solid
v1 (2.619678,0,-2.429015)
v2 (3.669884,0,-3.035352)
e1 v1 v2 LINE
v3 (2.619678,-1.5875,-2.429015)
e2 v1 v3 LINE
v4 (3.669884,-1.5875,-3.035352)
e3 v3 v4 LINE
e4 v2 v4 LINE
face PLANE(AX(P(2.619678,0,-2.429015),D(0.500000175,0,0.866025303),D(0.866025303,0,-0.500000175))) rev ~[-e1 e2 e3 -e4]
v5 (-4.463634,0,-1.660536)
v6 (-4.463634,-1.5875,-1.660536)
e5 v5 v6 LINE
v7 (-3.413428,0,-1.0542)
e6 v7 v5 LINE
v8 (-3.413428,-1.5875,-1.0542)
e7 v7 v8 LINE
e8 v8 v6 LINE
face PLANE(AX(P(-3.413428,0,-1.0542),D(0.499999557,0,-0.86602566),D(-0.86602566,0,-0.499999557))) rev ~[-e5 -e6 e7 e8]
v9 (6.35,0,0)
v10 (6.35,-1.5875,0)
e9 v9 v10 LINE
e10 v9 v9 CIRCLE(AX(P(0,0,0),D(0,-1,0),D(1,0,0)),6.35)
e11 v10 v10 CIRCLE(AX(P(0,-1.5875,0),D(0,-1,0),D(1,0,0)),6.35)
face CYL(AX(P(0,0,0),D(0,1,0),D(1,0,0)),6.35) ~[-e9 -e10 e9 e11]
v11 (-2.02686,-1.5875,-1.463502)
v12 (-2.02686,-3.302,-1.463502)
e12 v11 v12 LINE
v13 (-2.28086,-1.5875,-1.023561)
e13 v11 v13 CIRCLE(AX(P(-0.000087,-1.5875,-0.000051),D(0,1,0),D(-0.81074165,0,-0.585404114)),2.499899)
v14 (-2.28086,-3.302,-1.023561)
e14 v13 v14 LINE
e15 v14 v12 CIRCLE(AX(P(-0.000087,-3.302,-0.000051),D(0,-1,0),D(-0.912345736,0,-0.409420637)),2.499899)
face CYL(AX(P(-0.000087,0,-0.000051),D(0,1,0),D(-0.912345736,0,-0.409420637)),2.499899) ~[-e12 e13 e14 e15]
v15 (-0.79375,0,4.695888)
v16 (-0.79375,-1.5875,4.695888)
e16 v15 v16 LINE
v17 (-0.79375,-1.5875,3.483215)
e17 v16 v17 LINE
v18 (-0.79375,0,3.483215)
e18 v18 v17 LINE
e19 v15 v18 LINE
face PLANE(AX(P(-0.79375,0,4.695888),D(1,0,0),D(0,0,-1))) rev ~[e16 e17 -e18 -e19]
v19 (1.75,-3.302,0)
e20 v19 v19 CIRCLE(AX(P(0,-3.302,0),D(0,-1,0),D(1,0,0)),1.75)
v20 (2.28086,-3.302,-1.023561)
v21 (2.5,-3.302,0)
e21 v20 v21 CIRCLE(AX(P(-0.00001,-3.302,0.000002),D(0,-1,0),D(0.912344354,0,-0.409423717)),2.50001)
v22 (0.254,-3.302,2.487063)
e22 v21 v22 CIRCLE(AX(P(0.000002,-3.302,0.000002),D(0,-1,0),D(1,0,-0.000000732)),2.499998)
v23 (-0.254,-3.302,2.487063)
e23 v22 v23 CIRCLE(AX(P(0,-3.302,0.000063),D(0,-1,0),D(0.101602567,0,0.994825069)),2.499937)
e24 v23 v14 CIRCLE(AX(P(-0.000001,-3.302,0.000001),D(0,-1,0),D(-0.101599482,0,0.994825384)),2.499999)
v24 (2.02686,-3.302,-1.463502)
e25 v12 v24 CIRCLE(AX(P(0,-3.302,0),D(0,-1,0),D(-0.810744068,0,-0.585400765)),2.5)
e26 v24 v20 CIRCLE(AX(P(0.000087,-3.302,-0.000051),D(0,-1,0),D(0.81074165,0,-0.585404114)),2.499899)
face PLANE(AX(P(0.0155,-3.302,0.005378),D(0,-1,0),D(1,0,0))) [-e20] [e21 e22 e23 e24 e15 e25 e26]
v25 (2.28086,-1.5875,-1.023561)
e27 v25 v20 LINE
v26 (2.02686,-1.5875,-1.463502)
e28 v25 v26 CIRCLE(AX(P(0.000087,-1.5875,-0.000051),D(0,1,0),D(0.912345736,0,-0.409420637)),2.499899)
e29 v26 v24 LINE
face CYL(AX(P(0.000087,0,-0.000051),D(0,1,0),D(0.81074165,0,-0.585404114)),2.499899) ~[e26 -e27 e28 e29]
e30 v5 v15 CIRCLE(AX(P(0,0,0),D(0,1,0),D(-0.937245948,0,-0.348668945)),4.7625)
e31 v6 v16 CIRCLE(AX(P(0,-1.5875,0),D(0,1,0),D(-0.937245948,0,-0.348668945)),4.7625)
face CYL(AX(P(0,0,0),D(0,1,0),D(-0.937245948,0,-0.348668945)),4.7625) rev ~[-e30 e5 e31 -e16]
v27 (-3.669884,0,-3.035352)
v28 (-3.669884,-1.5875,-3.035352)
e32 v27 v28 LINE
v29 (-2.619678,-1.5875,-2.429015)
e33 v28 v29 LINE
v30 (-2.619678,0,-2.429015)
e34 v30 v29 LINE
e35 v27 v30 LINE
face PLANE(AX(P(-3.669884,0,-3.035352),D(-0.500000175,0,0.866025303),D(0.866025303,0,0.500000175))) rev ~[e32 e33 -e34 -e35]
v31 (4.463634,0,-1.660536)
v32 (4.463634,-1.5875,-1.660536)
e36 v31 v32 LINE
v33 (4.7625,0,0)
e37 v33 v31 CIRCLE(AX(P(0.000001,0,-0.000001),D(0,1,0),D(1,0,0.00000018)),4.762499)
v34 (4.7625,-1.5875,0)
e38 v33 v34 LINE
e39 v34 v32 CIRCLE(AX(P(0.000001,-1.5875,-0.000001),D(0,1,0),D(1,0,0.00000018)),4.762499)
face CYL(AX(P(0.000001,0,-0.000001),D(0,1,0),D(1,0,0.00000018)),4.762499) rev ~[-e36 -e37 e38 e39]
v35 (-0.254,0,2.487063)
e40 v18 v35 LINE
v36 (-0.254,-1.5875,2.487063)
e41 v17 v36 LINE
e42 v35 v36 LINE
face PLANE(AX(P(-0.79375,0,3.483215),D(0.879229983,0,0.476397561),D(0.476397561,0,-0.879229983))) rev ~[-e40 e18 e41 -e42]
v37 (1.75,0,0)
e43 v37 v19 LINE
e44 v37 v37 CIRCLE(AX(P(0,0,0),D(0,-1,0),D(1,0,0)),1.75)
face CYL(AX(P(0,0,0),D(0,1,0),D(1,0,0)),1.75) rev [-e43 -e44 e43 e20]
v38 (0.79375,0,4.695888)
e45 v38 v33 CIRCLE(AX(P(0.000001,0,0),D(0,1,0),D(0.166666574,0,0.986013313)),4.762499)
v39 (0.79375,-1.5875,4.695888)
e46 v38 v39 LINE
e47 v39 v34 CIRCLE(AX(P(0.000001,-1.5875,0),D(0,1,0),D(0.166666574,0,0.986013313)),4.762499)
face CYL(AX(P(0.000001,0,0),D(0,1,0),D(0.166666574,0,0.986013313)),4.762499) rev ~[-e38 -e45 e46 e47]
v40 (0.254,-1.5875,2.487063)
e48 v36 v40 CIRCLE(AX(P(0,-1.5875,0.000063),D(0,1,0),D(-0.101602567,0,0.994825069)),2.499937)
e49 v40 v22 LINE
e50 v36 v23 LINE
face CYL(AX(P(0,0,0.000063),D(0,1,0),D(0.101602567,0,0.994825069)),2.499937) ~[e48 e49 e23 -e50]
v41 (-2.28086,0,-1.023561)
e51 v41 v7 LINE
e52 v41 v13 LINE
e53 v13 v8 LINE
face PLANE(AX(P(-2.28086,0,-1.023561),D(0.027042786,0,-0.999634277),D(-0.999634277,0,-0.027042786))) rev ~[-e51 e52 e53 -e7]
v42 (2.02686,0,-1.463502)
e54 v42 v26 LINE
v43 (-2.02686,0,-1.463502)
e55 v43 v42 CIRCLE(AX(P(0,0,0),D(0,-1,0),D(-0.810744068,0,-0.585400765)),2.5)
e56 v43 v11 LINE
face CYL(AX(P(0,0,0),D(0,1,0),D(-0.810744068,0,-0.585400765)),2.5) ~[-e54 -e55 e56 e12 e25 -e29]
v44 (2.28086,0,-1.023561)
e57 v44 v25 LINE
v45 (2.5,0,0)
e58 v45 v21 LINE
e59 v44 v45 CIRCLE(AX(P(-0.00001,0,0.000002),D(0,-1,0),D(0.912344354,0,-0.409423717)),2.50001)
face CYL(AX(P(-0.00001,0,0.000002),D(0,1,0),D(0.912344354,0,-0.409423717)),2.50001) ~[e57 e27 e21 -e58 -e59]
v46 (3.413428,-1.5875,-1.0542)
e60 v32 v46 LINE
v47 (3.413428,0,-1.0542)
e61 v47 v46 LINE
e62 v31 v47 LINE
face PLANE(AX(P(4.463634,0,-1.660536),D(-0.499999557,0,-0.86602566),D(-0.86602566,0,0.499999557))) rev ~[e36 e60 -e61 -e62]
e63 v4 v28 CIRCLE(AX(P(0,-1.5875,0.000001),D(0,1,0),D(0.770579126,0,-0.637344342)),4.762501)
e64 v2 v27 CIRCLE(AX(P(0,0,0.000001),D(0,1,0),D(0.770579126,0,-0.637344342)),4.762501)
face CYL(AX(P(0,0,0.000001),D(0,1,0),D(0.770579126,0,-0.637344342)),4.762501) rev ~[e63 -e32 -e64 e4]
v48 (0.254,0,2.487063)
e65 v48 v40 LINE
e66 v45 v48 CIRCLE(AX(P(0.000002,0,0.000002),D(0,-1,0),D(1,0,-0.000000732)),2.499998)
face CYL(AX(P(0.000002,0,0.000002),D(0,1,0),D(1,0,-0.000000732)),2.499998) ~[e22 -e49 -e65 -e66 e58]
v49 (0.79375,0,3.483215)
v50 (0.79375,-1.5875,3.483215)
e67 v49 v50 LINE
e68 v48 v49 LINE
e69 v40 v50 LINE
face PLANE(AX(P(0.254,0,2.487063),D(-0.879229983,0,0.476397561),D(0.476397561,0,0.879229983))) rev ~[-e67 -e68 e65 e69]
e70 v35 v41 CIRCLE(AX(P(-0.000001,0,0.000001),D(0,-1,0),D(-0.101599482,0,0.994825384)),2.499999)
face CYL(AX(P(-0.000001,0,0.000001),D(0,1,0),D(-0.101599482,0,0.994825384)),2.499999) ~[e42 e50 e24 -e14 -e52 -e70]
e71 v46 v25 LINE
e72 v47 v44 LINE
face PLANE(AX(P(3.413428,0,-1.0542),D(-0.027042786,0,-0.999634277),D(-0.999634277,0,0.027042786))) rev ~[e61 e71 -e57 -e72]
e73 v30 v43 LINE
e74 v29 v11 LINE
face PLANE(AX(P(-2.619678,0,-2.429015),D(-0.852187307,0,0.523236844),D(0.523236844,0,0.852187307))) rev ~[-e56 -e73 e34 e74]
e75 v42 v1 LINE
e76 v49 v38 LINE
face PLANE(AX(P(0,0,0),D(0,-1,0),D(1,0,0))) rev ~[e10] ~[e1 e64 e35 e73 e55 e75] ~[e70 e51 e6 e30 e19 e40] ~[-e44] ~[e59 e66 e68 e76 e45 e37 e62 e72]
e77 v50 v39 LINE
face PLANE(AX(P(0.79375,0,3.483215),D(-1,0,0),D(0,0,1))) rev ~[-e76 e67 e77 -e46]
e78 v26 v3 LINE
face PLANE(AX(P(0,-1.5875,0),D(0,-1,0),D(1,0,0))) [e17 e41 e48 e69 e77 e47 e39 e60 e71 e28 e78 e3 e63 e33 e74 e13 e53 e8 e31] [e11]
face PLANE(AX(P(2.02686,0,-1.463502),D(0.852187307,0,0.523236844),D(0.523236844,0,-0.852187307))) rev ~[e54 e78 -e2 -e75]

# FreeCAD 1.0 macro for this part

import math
import FreeCAD as App
import Part
import Sketcher

V = App.Vector
Q = App.Units.Quantity

doc = App.newDocument("Part")
params = doc.addObject("Spreadsheet::Sheet", "Params")
for row, (alias, value) in enumerate([
    ("pad1_length", "0.13 in"),
    ("sketch2_diameter", "0.5 in"),
    ("sketch2_radius", "0.1875 in"),
    ("pad2_length", "0.0625 in"),
], start=1):
    params.set(f"A{row}", alias)
    params.set(f"B{row}", "=" + value)
    params.setAlias(f"B{row}", alias)

body = doc.addObject("PartDesign::Body", "Body")

sketch1 = body.newObject("Sketcher::SketchObject", "Sketch")
sketch1.AttachmentSupport = (doc.getObject("XZ_Plane"), [""])
sketch1.MapMode = "FlatFace"
sketch1.addGeometry([
    Part.ArcOfCircle(Part.Circle(V(-0.00001, 0.000002, 0), V(0, 0, 1), 2.50001), math.radians(-24.168639), math.radians(-0.000056)),
    Part.ArcOfCircle(Part.Circle(V(0.000002, 0.000002, 0), V(0, 0, 1), 2.499998), math.radians(-0.000042), math.radians(84.168736)),
    Part.ArcOfCircle(Part.Circle(V(0, 0.000063, 0), V(0, 0, 1), 2.499937), math.radians(84.168539), math.radians(95.831461)),
    Part.ArcOfCircle(Part.Circle(V(-0.000001, 0.000001, 0), V(0, 0, 1), 2.499999), math.radians(95.831283), math.radians(204.16871)),
    Part.ArcOfCircle(Part.Circle(V(-0.000087, -0.000051, 0), V(0, 0, 1), 2.499899), math.radians(-155.831555), math.radians(-144.168456)),
    Part.ArcOfCircle(Part.Circle(V(0, 0, 0), V(0, 0, 1), 2.5), math.radians(-144.168693), math.radians(-35.831307)),
    Part.ArcOfCircle(Part.Circle(V(0.000087, -0.000051, 0), V(0, 0, 1), 2.499899), math.radians(-35.831544), math.radians(-24.168445)),
    Part.Circle(V(0, 0, 0), V(0, 0, 1), 1.75),
], False)
sketch1.addConstraint([
    Sketcher.Constraint("Tangent", 0, 2, 1, 1),
    Sketcher.Constraint("Coincident", 1, 2, 2, 1),
    Sketcher.Constraint("Coincident", 2, 2, 3, 1),
    Sketcher.Constraint("Coincident", 3, 2, 4, 1),
    Sketcher.Constraint("Coincident", 4, 2, 5, 1),
    Sketcher.Constraint("Coincident", 5, 2, 6, 1),
    Sketcher.Constraint("Coincident", 6, 2, 0, 1),
    Sketcher.Constraint("Coincident", 1, 3, -1, 1),
    Sketcher.Constraint("Coincident", 3, 3, -1, 1),
    Sketcher.Constraint("Coincident", 5, 3, -1, 1),
    Sketcher.Constraint("Coincident", 7, 3, -1, 1),
    Sketcher.Constraint("Equal", 1, 3),
    Sketcher.Constraint("Equal", 3, 5),
    Sketcher.Constraint("Equal", 4, 6),
    Sketcher.Constraint("Symmetric", 3, 2, 6, 2, -2),
    Sketcher.Constraint("PointOnObject", 0, 2, -1),
    Sketcher.Constraint("Horizontal", 1, 2, 2, 2),
    Sketcher.Constraint("Horizontal", 4, 2, 5, 2),
    Sketcher.Constraint("Diameter", 7, Q("3.5 mm")),
    Sketcher.Constraint("DistanceX", -1, 1, 1, 2, Q("0.01 in")),
    Sketcher.Constraint("Radius", 3, Q("2.499999 mm")),
    Sketcher.Constraint("Radius", 4, Q("2.499899 mm")),
    Sketcher.Constraint("DistanceX", 3, 2, 4, 2, Q("0.01 in")),
    Sketcher.Constraint("Radius", 2, Q("2.499937 mm")),
    Sketcher.Constraint("DistanceY", 4, 2, -1, 1, Q("1.463502 mm")),
])
pad1 = body.newObject("PartDesign::Pad", "Pad")
pad1.Profile = sketch1
pad1.setExpression("Length", "Params.pad1_length")

sketch2 = body.newObject("Sketcher::SketchObject", "Sketch001")
sketch2.AttachmentSupport = (doc.getObject("XZ_Plane"), [""])
sketch2.MapMode = "FlatFace"
sketch2.addGeometry([
    Part.Circle(V(0, 0, 0), V(0, 0, 1), 6.35),
    Part.ArcOfCircle(Part.Circle(V(0, 0, 0), V(0, 0, 1), 4.7625), math.radians(99.594065), math.radians(200.405923)),
    Part.LineSegment(V(-0.79375, 4.695888, 0), V(-0.79375, 3.483215, 0)),
    Part.LineSegment(V(-0.79375, 3.483215, 0), V(-0.254, 2.487063, 0)),
    Part.ArcOfCircle(Part.Circle(V(0, 0.000063, 0), V(0, 0, 1), 2.499937), math.radians(84.168539), math.radians(95.831461)),
    Part.LineSegment(V(0.254, 2.487063, 0), V(0.79375, 3.483215, 0)),
    Part.LineSegment(V(0.79375, 3.483215, 0), V(0.79375, 4.695888, 0)),
    Part.ArcOfCircle(Part.Circle(V(0.000001, 0, 0), V(0, 0, 1), 4.762499), math.radians(-0.000001), math.radians(80.405937)),
    Part.ArcOfCircle(Part.Circle(V(0.000001, -0.000001, 0), V(0, 0, 1), 4.762499), math.radians(-20.40592), math.radians(0.00001)),
    Part.LineSegment(V(4.463634, -1.660536, 0), V(3.413428, -1.0542, 0)),
    Part.LineSegment(V(3.413428, -1.0542, 0), V(2.28086, -1.023561, 0)),
    Part.ArcOfCircle(Part.Circle(V(0.000087, -0.000051, 0), V(0, 0, 1), 2.499899), math.radians(-35.831544), math.radians(-24.168445)),
    Part.LineSegment(V(2.02686, -1.463502, 0), V(2.619678, -2.429015, 0)),
    Part.LineSegment(V(2.619678, -2.429015, 0), V(3.669884, -3.035352, 0)),
    Part.ArcOfCircle(Part.Circle(V(0, 0.000001, 0), V(0, 0, 1), 4.762501), math.radians(-140.405922), math.radians(-39.594078)),
    Part.LineSegment(V(-3.669884, -3.035352, 0), V(-2.619678, -2.429015, 0)),
    Part.LineSegment(V(-2.619678, -2.429015, 0), V(-2.02686, -1.463502, 0)),
    Part.ArcOfCircle(Part.Circle(V(-0.000087, -0.000051, 0), V(0, 0, 1), 2.499899), math.radians(-155.831555), math.radians(-144.168456)),
    Part.LineSegment(V(-2.28086, -1.023561, 0), V(-3.413428, -1.0542, 0)),
    Part.LineSegment(V(-3.413428, -1.0542, 0), V(-4.463634, -1.660536, 0)),
], False)
sketch2.addConstraint([
    Sketcher.Constraint("Coincident", 1, 1, 2, 1),
    Sketcher.Constraint("Coincident", 2, 2, 3, 1),
    Sketcher.Constraint("Coincident", 3, 2, 4, 2),
    Sketcher.Constraint("Coincident", 4, 1, 5, 1),
    Sketcher.Constraint("Coincident", 5, 2, 6, 1),
    Sketcher.Constraint("Coincident", 6, 2, 7, 2),
    Sketcher.Constraint("Tangent", 7, 1, 8, 2),
    Sketcher.Constraint("Coincident", 8, 1, 9, 1),
    Sketcher.Constraint("Coincident", 9, 2, 10, 1),
    Sketcher.Constraint("Coincident", 10, 2, 11, 2),
    Sketcher.Constraint("Coincident", 11, 1, 12, 1),
    Sketcher.Constraint("Coincident", 12, 2, 13, 1),
    Sketcher.Constraint("Coincident", 13, 2, 14, 2),
    Sketcher.Constraint("Coincident", 14, 1, 15, 1),
    Sketcher.Constraint("Coincident", 15, 2, 16, 1),
    Sketcher.Constraint("Coincident", 16, 2, 17, 2),
    Sketcher.Constraint("Coincident", 17, 1, 18, 1),
    Sketcher.Constraint("Coincident", 18, 2, 19, 1),
    Sketcher.Constraint("Coincident", 19, 2, 1, 2),
    Sketcher.Constraint("Vertical", 2),
    Sketcher.Constraint("Vertical", 6),
    Sketcher.Constraint("Coincident", 0, 3, -1, 1),
    Sketcher.Constraint("Coincident", 1, 3, -1, 1),
    Sketcher.Constraint("Coincident", 7, 3, -1, 1),
    Sketcher.Constraint("Coincident", 14, 3, -1, 1),
    Sketcher.Constraint("Equal", 1, 7),
    Sketcher.Constraint("Equal", 7, 8),
    Sketcher.Constraint("Equal", 7, 14),
    Sketcher.Constraint("Equal", 11, 17),
    Sketcher.Constraint("Symmetric", 11, 3, 17, 3, -2),
    Sketcher.Constraint("Symmetric", 3, 2, 4, 1, -2),
    Sketcher.Constraint("Symmetric", 2, 2, 5, 2, -2),
    Sketcher.Constraint("Symmetric", 12, 2, 15, 2, -2),
    Sketcher.Constraint("Symmetric", 9, 2, 18, 2, -2),
    Sketcher.Constraint("PointOnObject", 7, 1, -1),
    Sketcher.Constraint("Parallel", 9, 13),
    Sketcher.Constraint("Parallel", 15, 19),
    Sketcher.Constraint("Horizontal", 13, 2, 14, 1),
    Sketcher.Constraint("Horizontal", 11, 1, 16, 2),
    Sketcher.Constraint("Horizontal", 10, 2, 17, 1),
    Sketcher.Constraint("Equal", 5, 10),
    Sketcher.Constraint("Equal", 10, 12),
    Sketcher.Constraint("Equal", 9, 13),
    Sketcher.Constraint("Diameter", 0, Q("0.5 in")),
    Sketcher.Constraint("Angle", 13, Q("-30.000012 deg")),
    Sketcher.Constraint("Radius", 1, Q("0.1875 in")),
    Sketcher.Constraint("DistanceX", 3, 2, -1, 1, Q("0.01 in")),
    Sketcher.Constraint("Radius", 11, Q("2.499899 mm")),
    Sketcher.Constraint("DistanceX", 11, 1, 10, 2, Q("0.01 in")),
    Sketcher.Constraint("DistanceX", 1, 1, -1, 1, Q("0.03125 in")),
    Sketcher.Constraint("DistanceX", 12, 2, 9, 2, Q("0.03125 in")),
    Sketcher.Constraint("Radius", 4, Q("2.499937 mm")),
    Sketcher.Constraint("DistanceY", 14, 1, 17, 3, Q("0.1195001 in")),
    Sketcher.Constraint("DistanceY", 9, 2, -1, 1, Q("1.0542 mm")),
    Sketcher.Constraint("DistanceY", 11, 1, -1, 1, Q("1.463502 mm")),
    Sketcher.Constraint("DistanceY", 2, 2, 2, 1, Q("1.212673 mm")),
    Sketcher.Constraint("DistanceX", -1, 1, 9, 2, Q("3.413428 mm")),
])
sketch2.setExpression("Constraints[43]", "Params.sketch2_diameter")
sketch2.setExpression("Constraints[45]", "Params.sketch2_radius")
pad2 = body.newObject("PartDesign::Pad", "Pad001")
pad2.Profile = sketch2
pad2.setExpression("Length", "Params.pad2_length")

doc.recompute()
